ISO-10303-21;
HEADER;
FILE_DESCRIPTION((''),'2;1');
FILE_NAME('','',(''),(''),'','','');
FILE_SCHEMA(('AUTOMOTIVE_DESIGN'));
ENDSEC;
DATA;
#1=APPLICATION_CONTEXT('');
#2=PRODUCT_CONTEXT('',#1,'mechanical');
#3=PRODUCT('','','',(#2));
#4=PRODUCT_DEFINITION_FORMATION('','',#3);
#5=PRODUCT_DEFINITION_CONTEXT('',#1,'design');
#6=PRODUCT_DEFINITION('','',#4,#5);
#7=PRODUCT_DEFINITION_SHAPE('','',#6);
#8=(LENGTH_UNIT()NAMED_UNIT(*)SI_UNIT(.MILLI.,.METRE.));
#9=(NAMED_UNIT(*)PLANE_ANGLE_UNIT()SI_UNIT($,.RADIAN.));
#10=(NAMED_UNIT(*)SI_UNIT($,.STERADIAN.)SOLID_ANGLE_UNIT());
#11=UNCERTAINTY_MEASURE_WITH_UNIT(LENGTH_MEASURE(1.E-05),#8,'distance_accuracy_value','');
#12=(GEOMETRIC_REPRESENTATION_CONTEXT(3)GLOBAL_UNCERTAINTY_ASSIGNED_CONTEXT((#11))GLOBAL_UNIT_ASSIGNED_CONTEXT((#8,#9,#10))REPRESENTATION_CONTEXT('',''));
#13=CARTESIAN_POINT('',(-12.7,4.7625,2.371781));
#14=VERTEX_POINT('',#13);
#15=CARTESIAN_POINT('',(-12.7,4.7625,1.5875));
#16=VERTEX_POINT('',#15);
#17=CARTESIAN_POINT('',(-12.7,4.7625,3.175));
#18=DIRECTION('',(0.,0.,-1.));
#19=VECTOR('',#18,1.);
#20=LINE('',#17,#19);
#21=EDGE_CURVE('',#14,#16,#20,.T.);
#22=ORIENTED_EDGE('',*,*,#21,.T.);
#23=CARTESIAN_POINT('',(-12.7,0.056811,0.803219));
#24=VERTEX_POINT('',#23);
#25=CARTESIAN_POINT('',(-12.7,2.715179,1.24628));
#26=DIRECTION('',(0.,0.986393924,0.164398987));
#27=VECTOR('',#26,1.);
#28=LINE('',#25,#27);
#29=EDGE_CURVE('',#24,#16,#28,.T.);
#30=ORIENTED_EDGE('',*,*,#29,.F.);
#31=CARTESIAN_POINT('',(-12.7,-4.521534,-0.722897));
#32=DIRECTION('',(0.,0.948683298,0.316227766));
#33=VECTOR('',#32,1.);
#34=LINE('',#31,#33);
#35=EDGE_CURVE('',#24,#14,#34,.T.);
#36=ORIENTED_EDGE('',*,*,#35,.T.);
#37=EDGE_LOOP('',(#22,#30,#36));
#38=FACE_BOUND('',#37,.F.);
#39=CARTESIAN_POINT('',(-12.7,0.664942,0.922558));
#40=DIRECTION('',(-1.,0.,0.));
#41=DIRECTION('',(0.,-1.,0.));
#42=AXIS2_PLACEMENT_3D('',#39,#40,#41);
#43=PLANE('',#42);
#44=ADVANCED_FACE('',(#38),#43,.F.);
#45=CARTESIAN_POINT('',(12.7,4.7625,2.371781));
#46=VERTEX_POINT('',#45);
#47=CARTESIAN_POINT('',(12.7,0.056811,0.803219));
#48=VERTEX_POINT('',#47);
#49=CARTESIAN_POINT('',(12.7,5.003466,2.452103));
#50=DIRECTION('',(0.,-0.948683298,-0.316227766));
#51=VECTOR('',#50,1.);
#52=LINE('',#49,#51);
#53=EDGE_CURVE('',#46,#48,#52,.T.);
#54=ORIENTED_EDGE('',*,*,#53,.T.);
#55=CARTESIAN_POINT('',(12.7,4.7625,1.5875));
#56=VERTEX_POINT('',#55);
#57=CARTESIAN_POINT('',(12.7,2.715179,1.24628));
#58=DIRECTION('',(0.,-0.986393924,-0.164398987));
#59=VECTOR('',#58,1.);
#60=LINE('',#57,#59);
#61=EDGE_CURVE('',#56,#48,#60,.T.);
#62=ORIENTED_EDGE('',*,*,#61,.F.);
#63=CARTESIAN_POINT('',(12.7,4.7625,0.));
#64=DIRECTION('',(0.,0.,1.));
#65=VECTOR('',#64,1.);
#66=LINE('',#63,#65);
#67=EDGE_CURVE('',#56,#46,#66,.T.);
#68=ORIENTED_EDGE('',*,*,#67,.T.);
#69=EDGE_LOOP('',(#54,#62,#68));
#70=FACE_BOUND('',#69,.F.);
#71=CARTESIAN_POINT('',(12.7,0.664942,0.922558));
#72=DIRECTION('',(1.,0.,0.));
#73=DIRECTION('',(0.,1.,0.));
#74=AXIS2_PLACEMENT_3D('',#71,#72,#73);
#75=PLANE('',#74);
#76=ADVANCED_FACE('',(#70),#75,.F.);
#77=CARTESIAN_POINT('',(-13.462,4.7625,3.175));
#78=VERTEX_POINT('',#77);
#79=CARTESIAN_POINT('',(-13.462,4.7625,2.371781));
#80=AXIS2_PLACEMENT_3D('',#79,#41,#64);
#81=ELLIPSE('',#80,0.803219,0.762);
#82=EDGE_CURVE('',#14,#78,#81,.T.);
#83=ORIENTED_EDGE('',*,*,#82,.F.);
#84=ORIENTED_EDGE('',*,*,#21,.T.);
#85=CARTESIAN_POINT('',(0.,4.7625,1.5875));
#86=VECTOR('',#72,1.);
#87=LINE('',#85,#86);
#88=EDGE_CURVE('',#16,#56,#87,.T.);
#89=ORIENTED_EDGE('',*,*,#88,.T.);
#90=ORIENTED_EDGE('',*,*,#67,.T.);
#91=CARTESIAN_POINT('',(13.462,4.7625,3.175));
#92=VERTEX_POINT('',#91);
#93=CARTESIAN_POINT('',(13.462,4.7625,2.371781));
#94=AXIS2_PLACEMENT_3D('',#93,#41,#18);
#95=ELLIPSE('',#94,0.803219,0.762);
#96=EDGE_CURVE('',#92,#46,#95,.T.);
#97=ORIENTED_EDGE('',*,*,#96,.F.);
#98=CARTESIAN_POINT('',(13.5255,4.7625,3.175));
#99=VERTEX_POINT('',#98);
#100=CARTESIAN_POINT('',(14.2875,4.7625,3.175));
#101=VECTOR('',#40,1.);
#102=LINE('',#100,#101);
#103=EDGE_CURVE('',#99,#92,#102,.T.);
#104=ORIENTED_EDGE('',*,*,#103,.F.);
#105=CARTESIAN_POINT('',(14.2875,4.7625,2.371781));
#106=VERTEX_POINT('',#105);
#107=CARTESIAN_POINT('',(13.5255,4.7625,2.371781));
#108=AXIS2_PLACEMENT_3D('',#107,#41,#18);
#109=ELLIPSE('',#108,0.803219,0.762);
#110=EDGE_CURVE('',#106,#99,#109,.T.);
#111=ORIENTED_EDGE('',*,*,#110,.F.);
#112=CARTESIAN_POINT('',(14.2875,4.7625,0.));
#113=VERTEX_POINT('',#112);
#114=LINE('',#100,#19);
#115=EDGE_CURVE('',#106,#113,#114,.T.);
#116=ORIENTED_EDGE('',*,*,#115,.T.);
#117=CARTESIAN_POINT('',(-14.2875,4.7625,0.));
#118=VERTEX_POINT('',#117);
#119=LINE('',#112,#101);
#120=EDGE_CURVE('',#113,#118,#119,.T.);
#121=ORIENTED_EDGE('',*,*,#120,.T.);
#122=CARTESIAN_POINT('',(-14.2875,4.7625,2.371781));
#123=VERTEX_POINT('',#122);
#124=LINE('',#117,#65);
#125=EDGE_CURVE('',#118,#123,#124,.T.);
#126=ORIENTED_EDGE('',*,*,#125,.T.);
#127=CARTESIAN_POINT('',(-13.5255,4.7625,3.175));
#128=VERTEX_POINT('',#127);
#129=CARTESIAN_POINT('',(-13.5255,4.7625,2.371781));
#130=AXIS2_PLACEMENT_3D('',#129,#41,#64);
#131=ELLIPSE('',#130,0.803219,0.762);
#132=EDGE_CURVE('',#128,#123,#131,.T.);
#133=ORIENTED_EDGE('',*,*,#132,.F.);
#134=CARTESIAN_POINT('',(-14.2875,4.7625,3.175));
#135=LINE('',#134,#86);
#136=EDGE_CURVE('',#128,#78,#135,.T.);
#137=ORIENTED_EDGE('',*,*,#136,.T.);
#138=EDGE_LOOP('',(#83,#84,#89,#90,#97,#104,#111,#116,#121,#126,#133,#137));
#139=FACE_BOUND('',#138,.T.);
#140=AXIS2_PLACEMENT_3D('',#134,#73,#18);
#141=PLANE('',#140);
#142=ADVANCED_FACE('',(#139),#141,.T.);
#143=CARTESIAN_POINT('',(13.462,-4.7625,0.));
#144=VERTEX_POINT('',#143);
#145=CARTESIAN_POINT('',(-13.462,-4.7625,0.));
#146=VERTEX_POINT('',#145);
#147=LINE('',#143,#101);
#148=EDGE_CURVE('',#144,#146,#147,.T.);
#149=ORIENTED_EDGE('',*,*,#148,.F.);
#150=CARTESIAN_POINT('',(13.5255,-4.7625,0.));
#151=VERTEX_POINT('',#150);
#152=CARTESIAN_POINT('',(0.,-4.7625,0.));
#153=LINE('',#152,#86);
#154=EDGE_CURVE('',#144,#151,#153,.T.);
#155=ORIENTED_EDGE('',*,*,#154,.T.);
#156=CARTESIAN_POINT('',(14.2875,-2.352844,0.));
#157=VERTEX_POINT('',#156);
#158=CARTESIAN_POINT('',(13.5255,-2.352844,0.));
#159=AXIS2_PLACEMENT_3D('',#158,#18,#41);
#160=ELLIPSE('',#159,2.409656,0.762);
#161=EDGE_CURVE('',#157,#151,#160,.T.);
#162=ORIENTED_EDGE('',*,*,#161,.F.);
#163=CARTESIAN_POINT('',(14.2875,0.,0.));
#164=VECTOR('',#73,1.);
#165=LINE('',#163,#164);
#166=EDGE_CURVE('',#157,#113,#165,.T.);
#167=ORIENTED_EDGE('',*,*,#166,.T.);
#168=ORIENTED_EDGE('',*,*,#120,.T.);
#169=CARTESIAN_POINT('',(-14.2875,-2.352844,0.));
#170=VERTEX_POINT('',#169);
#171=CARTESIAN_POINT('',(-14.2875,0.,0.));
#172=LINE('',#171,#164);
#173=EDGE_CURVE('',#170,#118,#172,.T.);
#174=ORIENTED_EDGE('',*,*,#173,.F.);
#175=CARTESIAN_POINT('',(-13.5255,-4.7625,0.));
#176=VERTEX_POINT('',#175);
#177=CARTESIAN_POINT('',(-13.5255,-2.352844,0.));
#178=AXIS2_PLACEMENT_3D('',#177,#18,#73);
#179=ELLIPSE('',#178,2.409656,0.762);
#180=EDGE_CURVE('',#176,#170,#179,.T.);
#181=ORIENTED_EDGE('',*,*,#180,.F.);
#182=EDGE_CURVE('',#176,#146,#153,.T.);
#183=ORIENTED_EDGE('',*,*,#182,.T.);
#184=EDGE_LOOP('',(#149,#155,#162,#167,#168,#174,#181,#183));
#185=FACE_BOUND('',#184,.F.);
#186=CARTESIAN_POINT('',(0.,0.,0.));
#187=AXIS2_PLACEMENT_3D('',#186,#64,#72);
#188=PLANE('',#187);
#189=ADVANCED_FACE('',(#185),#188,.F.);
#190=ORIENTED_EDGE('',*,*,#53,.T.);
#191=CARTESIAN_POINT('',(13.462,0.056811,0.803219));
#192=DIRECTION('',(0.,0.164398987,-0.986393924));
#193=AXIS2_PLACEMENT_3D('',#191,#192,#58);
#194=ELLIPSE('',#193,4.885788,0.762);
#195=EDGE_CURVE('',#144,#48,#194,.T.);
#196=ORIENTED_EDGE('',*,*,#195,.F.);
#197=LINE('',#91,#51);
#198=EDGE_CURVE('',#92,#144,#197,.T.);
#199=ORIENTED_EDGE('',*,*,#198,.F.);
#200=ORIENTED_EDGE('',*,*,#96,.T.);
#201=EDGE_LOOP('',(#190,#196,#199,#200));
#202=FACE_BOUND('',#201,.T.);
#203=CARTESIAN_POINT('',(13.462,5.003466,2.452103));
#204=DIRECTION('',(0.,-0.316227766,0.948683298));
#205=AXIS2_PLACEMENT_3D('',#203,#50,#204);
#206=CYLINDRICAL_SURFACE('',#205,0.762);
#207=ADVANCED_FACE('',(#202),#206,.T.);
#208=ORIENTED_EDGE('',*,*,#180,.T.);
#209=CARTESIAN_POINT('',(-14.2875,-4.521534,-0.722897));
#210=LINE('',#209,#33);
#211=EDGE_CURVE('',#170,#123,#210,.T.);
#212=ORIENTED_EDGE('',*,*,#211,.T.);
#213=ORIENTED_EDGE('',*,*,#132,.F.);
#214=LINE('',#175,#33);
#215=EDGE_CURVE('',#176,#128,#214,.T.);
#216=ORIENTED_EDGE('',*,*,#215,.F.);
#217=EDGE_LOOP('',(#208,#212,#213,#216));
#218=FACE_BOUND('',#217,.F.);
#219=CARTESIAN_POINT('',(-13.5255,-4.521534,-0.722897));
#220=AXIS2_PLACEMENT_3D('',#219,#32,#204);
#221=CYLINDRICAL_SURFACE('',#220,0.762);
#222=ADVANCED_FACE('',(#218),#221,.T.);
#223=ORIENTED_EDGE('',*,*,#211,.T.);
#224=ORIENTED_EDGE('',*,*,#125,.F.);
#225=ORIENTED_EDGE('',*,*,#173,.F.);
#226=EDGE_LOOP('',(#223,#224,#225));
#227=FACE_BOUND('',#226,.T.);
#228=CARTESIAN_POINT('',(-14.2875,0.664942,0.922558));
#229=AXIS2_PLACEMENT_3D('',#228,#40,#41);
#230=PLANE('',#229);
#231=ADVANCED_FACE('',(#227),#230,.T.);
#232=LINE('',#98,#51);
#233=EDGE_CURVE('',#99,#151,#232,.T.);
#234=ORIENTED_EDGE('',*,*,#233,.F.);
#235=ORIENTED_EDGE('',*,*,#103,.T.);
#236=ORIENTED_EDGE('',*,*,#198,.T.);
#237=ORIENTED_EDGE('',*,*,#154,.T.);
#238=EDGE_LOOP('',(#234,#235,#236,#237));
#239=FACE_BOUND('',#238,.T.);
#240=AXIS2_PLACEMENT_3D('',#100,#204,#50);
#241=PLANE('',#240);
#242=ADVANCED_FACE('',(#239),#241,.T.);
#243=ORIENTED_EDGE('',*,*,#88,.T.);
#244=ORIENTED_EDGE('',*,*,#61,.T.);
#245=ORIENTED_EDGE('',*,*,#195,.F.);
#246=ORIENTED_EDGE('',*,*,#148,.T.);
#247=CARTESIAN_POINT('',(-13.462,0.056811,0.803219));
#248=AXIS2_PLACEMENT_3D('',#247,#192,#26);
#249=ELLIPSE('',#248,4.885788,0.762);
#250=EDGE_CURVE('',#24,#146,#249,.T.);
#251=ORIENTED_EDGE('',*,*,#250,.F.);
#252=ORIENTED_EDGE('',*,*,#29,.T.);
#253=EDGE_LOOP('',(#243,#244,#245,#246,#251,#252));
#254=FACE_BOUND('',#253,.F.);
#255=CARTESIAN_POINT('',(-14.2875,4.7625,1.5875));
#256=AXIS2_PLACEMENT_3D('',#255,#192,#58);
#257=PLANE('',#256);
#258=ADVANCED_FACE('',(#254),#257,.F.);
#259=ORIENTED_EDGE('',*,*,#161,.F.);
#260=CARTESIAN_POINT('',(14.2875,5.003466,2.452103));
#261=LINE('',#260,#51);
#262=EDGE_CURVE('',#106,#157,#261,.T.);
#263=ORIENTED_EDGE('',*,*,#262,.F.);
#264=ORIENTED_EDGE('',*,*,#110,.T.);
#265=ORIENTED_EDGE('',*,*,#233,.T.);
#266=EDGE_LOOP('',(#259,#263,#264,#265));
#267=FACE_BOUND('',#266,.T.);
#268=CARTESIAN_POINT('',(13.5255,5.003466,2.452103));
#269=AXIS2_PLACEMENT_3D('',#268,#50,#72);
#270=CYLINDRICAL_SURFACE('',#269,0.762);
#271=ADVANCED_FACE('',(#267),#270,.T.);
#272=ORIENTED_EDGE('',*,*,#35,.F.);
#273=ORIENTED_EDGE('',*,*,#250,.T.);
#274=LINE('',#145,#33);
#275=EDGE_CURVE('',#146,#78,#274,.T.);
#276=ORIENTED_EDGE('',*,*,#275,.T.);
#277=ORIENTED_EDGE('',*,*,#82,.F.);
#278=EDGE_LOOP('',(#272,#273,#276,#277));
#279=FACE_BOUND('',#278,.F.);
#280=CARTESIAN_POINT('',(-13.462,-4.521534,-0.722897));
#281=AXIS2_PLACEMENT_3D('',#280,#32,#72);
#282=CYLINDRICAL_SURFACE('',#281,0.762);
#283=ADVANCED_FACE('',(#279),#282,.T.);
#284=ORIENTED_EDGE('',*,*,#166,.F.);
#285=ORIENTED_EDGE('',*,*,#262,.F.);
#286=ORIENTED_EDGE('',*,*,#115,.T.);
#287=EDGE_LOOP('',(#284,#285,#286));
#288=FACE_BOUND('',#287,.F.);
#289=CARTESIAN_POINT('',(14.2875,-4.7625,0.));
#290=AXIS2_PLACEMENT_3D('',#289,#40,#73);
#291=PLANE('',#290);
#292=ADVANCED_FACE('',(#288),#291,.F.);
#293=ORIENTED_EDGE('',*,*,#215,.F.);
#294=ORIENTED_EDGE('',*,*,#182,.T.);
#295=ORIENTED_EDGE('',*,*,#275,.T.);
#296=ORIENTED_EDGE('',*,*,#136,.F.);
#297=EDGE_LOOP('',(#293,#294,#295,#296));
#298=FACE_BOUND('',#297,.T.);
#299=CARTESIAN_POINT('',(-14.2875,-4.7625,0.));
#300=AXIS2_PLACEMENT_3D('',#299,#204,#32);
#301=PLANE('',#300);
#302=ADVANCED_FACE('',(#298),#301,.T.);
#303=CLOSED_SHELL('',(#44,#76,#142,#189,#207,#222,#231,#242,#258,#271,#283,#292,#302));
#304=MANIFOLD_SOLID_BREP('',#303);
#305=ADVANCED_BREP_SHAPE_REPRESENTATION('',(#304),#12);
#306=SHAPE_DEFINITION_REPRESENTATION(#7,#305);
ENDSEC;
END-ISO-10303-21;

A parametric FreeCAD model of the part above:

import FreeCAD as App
import Part
import Sketcher
from FreeCAD import Vector
Q = App.Units.Quantity


def edges_at(feature, points):
    """Names of the edges that pass closest to the given points."""
    edges = feature.Shape.Edges
    near = lambda p: min(range(len(edges)), key=lambda i: edges[i].distToShape(Part.Vertex(*p))[0])
    return sorted({f"Edge{near(p) + 1}" for p in points})


def add_polygon(sketch, points):
    """Adds a closed chain of lines whose ends are joined by coincident constraints."""
    first, n = sketch.GeometryCount, len(points)
    for a, b in zip(points, points[1:] + points[:1]):
        sketch.addGeometry(Part.LineSegment(App.Vector(*a, 0), App.Vector(*b, 0)), False)
    for i in range(n):
        sketch.addConstraint(Sketcher.Constraint("Coincident", first + i, 2, first + (i + 1) % n, 1))

doc = App.newDocument("Part")
body = doc.addObject("PartDesign::Body", "Body")

sketch1 = body.newObject("Sketcher::SketchObject", "Sketch")
sketch1.AttachmentSupport = (doc.getObject("XY_Plane"), [""])
sketch1.MapMode = "FlatFace"
add_polygon(sketch1, [(-14.2875, 4.7625), (-14.2875, -4.7625), (14.2875, -4.7625), (14.2875, 4.7625)])
sketch1.addConstraint([
    Sketcher.Constraint("Vertical", 0),
    Sketcher.Constraint("Horizontal", 1),
    Sketcher.Constraint("Vertical", 2),
    Sketcher.Constraint("Horizontal", 3),
    Sketcher.Constraint("Symmetric", 0, 2, 2, 2, -1, 1),
    Sketcher.Constraint("DistanceX", 1, 1, 1, 2, Q("1.125 in")),
    Sketcher.Constraint("DistanceY", 0, 2, 0, 1, Q("0.375 in")),
])
pad1 = body.newObject("PartDesign::Pad", "Pad")
pad1.Profile = sketch1
pad1.Length = Q("0.0625 in")

sketch2 = body.newObject("Sketcher::SketchObject", "Sketch001")
sketch2.AttachmentSupport = (doc.getObject("YZ_Plane"), [""])
sketch2.MapMode = "FlatFace"
sketch2.AttachmentOffset = App.Placement(Vector(0, 0, -0.5625 * 25.4), App.Rotation())
add_polygon(sketch2, [(-4.7625, 1.5875), (4.7625, 1.5875), (-4.7625, 0)])
sketch2.addConstraint([
    Sketcher.Constraint("Horizontal", 0),
    Sketcher.Constraint("Vertical", 2),
    Sketcher.Constraint("PointOnObject", 1, 2, -1),
    Sketcher.Constraint("DistanceX", 0, 1, 0, 2, Q("0.375 in")),
    Sketcher.Constraint("DistanceY", 2, 1, 2, 2, Q("0.0625 in")),
    Sketcher.Constraint("DistanceX", -1, 1, 0, 2, Q("0.1875 in")),
])
pocket1 = body.newObject("PartDesign::Pocket", "Pocket")
pocket1.Profile = sketch2
pocket1.Type = "ThroughAll"
pocket1.Reversed = True

sketch3 = body.newObject("Sketcher::SketchObject", "Sketch002")
sketch3.AttachmentSupport = (doc.getObject("YZ_Plane"), [""])
sketch3.MapMode = "FlatFace"
sketch3.AttachmentOffset = App.Placement(Vector(0, 0, -0.5625 * 25.4), App.Rotation())
add_polygon(sketch3, [(4.7625, 3.175), (4.7625, 0), (-4.7625, 0)])
sketch3.addConstraint([
    Sketcher.Constraint("Vertical", 0),
    Sketcher.Constraint("Horizontal", 1),
    Sketcher.Constraint("Symmetric", 0, 2, 1, 2, -1, 1),
    Sketcher.Constraint("DistanceX", 1, 2, 1, 1, Q("0.375 in")),
    Sketcher.Constraint("DistanceY", 0, 2, 0, 1, Q("0.125 in")),
])
pad2 = body.newObject("PartDesign::Pad", "Pad001")
pad2.Profile = sketch3
pad2.Length = Q("0.0625 in")

sketch4 = body.newObject("Sketcher::SketchObject", "Sketch003")
sketch4.AttachmentSupport = (doc.getObject("YZ_Plane"), [""])
sketch4.MapMode = "FlatFace"
sketch4.AttachmentOffset = App.Placement(Vector(0, 0, 0.5625 * 25.4), App.Rotation())
add_polygon(sketch4, [(-4.7625, 0), (4.7625, 0), (4.7625, 3.175)])
sketch4.addConstraint([
    Sketcher.Constraint("Horizontal", 0),
    Sketcher.Constraint("Vertical", 1),
    Sketcher.Constraint("Symmetric", 0, 2, 2, 2, -1, 1),
    Sketcher.Constraint("DistanceX", 0, 1, 0, 2, Q("0.375 in")),
    Sketcher.Constraint("DistanceY", 1, 1, 1, 2, Q("0.125 in")),
])
pad3 = body.newObject("PartDesign::Pad", "Pad002")
pad3.Profile = sketch4
pad3.Length = Q("0.0625 in")
pad3.Reversed = True
doc.recompute()

fillet = body.newObject("PartDesign::Fillet", "Fillet")
fillet.Base = (pad3, edges_at(pad3, [
    (-14.287, 0, 1.587),
    (-12.7, 0, 1.587),
    (12.7, 0, 1.587),
    (14.287, 0, 1.587),
]))
fillet.Radius = Q("0.03 in")

doc.recompute()
